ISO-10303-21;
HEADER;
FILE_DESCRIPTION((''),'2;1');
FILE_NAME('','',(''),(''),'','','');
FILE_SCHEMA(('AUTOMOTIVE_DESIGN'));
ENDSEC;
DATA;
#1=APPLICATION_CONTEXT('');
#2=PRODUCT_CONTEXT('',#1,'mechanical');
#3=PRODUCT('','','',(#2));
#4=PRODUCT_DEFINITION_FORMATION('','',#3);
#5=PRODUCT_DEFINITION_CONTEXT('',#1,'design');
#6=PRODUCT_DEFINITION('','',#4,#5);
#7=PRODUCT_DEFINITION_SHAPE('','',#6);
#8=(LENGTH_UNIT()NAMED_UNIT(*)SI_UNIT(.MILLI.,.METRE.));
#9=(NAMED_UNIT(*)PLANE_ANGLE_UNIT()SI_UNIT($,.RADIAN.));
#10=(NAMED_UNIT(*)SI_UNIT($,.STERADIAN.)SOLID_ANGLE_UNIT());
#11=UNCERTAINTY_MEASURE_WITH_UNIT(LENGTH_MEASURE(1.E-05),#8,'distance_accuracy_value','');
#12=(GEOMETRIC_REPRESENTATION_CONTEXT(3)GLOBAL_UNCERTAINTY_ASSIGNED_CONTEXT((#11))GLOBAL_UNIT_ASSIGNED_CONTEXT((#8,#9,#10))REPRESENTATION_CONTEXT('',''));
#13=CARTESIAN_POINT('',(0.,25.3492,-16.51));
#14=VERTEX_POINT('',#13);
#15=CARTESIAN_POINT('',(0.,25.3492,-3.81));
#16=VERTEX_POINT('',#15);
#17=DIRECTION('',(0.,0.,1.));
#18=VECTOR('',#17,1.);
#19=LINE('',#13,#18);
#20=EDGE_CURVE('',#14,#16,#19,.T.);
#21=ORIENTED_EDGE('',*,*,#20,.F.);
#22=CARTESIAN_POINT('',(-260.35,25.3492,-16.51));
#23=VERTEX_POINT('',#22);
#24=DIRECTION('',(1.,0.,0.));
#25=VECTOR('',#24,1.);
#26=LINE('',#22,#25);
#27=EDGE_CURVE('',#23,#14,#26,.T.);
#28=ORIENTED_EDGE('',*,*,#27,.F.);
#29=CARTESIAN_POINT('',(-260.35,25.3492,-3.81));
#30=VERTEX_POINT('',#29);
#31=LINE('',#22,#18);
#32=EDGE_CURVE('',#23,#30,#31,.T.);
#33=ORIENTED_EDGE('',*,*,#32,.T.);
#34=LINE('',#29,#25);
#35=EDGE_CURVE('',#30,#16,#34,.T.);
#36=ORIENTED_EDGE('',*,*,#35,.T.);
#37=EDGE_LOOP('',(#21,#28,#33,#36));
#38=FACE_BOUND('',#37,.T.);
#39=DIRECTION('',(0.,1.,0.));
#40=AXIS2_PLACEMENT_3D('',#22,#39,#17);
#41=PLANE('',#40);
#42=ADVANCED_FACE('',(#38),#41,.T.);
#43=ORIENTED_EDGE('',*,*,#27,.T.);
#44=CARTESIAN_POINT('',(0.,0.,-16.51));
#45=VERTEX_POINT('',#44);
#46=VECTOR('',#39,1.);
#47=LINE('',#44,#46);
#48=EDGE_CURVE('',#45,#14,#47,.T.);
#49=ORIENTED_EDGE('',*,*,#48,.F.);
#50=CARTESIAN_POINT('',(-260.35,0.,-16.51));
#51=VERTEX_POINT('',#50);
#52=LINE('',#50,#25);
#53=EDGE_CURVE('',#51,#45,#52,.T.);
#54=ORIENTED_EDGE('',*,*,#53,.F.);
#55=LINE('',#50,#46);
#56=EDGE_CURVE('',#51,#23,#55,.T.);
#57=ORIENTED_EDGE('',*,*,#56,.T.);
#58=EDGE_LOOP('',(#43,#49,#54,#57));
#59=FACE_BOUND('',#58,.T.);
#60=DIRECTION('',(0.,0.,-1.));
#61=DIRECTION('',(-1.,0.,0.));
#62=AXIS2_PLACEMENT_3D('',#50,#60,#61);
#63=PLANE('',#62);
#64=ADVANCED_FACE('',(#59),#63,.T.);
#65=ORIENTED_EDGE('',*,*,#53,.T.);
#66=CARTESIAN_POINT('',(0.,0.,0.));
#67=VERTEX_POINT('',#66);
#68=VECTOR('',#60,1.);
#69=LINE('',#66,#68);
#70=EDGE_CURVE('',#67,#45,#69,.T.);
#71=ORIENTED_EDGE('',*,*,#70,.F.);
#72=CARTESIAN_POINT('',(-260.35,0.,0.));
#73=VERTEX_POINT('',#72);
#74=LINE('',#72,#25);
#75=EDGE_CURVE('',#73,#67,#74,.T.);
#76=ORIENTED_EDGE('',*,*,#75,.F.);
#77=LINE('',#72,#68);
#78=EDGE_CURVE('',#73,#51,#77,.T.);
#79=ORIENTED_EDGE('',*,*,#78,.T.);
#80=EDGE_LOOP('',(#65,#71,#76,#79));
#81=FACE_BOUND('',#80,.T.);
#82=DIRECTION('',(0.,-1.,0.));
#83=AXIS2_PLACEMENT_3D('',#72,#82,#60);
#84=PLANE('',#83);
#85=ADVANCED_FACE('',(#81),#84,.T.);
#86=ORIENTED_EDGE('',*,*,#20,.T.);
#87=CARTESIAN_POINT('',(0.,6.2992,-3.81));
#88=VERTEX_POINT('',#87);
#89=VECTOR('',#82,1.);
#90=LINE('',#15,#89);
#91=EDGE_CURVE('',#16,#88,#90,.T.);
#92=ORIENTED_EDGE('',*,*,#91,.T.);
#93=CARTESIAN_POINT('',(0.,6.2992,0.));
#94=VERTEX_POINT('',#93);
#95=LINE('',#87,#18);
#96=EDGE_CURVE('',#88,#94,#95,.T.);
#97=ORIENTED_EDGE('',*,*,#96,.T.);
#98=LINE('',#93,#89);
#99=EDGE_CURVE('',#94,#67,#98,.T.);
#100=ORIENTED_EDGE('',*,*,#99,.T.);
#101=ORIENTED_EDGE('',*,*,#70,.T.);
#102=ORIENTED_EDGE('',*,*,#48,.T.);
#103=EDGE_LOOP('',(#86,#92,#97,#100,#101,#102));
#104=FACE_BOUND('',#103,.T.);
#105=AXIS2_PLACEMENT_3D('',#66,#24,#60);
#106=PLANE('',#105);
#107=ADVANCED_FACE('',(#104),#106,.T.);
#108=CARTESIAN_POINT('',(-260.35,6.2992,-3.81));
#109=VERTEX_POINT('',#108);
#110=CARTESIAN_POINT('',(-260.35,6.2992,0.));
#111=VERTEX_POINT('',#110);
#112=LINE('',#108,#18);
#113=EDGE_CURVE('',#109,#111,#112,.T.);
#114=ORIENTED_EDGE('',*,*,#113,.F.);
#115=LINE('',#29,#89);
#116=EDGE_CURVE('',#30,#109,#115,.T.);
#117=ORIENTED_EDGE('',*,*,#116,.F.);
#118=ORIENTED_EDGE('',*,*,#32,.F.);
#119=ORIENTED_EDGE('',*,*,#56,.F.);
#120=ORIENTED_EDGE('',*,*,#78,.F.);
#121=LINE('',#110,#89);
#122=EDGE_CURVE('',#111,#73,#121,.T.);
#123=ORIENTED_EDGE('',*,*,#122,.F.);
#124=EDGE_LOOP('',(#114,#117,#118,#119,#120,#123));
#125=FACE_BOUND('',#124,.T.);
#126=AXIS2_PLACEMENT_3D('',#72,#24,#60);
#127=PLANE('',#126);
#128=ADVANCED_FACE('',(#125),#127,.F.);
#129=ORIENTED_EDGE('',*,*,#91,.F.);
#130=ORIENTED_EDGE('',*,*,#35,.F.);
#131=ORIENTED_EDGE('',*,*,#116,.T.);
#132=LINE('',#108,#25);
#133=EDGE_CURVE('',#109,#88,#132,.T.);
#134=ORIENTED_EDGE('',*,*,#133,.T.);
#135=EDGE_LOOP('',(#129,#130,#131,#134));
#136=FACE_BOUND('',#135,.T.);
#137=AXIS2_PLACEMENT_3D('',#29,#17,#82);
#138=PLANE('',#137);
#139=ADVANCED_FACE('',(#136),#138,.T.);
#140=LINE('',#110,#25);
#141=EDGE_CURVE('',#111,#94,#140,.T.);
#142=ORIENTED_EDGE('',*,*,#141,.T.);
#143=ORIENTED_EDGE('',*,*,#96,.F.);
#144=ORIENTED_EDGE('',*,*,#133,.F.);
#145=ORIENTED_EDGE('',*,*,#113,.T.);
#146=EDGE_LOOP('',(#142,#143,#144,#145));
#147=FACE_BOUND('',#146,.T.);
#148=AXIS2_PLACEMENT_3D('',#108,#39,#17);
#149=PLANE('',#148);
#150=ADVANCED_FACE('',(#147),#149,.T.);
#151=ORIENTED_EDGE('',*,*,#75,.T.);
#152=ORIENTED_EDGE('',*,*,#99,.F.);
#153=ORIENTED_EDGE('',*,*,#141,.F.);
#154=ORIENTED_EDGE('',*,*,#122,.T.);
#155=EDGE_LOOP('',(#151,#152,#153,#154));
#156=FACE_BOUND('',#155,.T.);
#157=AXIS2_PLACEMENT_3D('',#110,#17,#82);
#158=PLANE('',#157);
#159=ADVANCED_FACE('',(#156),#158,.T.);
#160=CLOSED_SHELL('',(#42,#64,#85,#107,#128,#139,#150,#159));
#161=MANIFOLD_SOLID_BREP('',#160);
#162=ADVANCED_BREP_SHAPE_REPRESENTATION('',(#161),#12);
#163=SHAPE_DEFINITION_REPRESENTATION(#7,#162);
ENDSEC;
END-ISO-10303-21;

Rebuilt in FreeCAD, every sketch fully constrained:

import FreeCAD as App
import Part
import Sketcher

V = App.Vector
Q = App.Units.Quantity

doc = App.newDocument("Part")
body = doc.addObject("PartDesign::Body", "Body")

sketch1 = body.newObject("Sketcher::SketchObject", "Sketch")
sketch1.AttachmentSupport = (doc.getObject("YZ_Plane"), [""])
sketch1.MapMode = "FlatFace"
sketch1.addGeometry(Part.LineSegment(V(0, 0, 0), V(0, -16.51, 0)), False)
sketch1.addGeometry(Part.LineSegment(V(0, -16.51, 0), V(25.3492, -16.51, 0)), False)
sketch1.addGeometry(Part.LineSegment(V(25.3492, -16.51, 0), V(25.3492, -3.81, 0)), False)
sketch1.addGeometry(Part.LineSegment(V(25.3492, -3.81, 0), V(6.2992, -3.81, 0)), False)
sketch1.addGeometry(Part.LineSegment(V(6.2992, -3.81, 0), V(6.2992, 0, 0)), False)
sketch1.addGeometry(Part.LineSegment(V(6.2992, 0, 0), V(0, 0, 0)), False)
sketch1.addConstraint(Sketcher.Constraint("Coincident", 0, 2, 1, 1))
sketch1.addConstraint(Sketcher.Constraint("Coincident", 1, 2, 2, 1))
sketch1.addConstraint(Sketcher.Constraint("Coincident", 2, 2, 3, 1))
sketch1.addConstraint(Sketcher.Constraint("Coincident", 3, 2, 4, 1))
sketch1.addConstraint(Sketcher.Constraint("Coincident", 4, 2, 5, 1))
sketch1.addConstraint(Sketcher.Constraint("Coincident", 5, 2, 0, 1))
sketch1.addConstraint(Sketcher.Constraint("Vertical", 0))
sketch1.addConstraint(Sketcher.Constraint("Horizontal", 1))
sketch1.addConstraint(Sketcher.Constraint("Vertical", 2))
sketch1.addConstraint(Sketcher.Constraint("Horizontal", 3))
sketch1.addConstraint(Sketcher.Constraint("Vertical", 4))
sketch1.addConstraint(Sketcher.Constraint("Horizontal", 5))
sketch1.addConstraint(Sketcher.Constraint("Coincident", 5, 2, -1, 1))
sketch1.addConstraint(Sketcher.Constraint("DistanceY", 2, 1, 2, 2, Q("0.5 in")))
sketch1.addConstraint(Sketcher.Constraint("DistanceX", 3, 2, 3, 1, Q("0.75 in")))
sketch1.addConstraint(Sketcher.Constraint("DistanceY", 0, 2, 0, 1, Q("0.65 in")))
sketch1.addConstraint(Sketcher.Constraint("DistanceX", 1, 1, 1, 2, Q("0.998 in")))
pad1 = body.newObject("PartDesign::Pad", "Pad")
pad1.Profile = sketch1
pad1.Length = Q("10.25 in")
pad1.Reversed = True

doc.recompute()
